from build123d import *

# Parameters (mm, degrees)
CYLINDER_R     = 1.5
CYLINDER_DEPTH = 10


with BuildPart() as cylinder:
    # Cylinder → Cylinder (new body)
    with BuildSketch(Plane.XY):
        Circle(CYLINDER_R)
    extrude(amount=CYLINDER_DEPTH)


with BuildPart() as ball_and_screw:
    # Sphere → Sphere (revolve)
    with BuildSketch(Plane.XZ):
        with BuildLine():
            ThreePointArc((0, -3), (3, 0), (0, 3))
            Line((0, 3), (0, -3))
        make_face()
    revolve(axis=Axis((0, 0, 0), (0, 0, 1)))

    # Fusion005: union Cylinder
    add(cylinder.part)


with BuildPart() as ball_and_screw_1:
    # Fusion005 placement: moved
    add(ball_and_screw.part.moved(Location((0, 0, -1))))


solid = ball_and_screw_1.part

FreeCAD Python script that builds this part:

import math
import FreeCAD as App
import Part
import Sketcher
Q = App.Units.Quantity

doc = App.newDocument("Part")
body = doc.addObject("PartDesign::Body", "Body")

# Sketch on XY plane
sketch1 = doc.addObject("Sketcher::SketchObject", "Sketch")
body.addObject(sketch1)
sketch1.AttachmentSupport = (doc.XY_Plane, [""])
sketch1.MapMode = "FlatFace"
sketch1.addGeometry(Part.Circle(App.Vector(0, 0, 0), App.Vector(0, 0, 1), 1.5), False)
sketch1.addConstraint(Sketcher.Constraint("Coincident", 0, 3, -1, 1))
sketch1.addConstraint(Sketcher.Constraint("Diameter", 0, Q("3 mm")))
pad1 = doc.addObject("PartDesign::Pad", "Pad")
body.addObject(pad1)
pad1.Profile = sketch1
pad1.Length = 10
body2 = doc.addObject("PartDesign::Body", "Body001")

# Sketch on XZ plane
sketch2 = doc.addObject("Sketcher::SketchObject", "Sketch001")
body2.addObject(sketch2)
sketch2.AttachmentSupport = (doc.getObject("XZ_Plane001"), [""])
sketch2.MapMode = "FlatFace"
sketch2.addGeometry(Part.ArcOfCircle(Part.Circle(App.Vector(0, 0, 0), App.Vector(0, 0, 1), 3), math.radians(-90), math.radians(90)), False)
sketch2.addGeometry(Part.LineSegment(App.Vector(0, 3, 0), App.Vector(0, -3, 0)), False)
sketch2.addConstraint(Sketcher.Constraint("Coincident", 0, 1, 1, 2))
sketch2.addConstraint(Sketcher.Constraint("Coincident", 1, 1, 0, 2))
sketch2.addConstraint(Sketcher.Constraint("Vertical", 1))
sketch2.addConstraint(Sketcher.Constraint("Coincident", 0, 3, -1, 1))
sketch2.addConstraint(Sketcher.Constraint("PointOnObject", 0, 1, -2))
sketch2.addConstraint(Sketcher.Constraint("Radius", 0, Q("3 mm")))
revolution = doc.addObject("PartDesign::Revolution", "Revolution")
body2.addObject(revolution)
revolution.Profile = sketch2
revolution.ReferenceAxis = (sketch2, ["V_Axis"])
revolution.Angle = 360
doc.recompute()

boolean = doc.addObject("PartDesign::Boolean", "Boolean")
body2.addObject(boolean)
boolean.Type = "Fuse"
boolean.addObjects([body])
body3 = doc.addObject("PartDesign::Body", "Body002")
doc.recompute()

body2.Placement = App.Placement(App.Vector(0, 0, -1), App.Rotation(App.Vector(0, 0, 1), 0))
boolean2 = doc.addObject("PartDesign::Boolean", "Boolean001")
body3.addObject(boolean2)
boolean2.Type = "Fuse"
boolean2.addObjects([body2])

doc.recompute()
